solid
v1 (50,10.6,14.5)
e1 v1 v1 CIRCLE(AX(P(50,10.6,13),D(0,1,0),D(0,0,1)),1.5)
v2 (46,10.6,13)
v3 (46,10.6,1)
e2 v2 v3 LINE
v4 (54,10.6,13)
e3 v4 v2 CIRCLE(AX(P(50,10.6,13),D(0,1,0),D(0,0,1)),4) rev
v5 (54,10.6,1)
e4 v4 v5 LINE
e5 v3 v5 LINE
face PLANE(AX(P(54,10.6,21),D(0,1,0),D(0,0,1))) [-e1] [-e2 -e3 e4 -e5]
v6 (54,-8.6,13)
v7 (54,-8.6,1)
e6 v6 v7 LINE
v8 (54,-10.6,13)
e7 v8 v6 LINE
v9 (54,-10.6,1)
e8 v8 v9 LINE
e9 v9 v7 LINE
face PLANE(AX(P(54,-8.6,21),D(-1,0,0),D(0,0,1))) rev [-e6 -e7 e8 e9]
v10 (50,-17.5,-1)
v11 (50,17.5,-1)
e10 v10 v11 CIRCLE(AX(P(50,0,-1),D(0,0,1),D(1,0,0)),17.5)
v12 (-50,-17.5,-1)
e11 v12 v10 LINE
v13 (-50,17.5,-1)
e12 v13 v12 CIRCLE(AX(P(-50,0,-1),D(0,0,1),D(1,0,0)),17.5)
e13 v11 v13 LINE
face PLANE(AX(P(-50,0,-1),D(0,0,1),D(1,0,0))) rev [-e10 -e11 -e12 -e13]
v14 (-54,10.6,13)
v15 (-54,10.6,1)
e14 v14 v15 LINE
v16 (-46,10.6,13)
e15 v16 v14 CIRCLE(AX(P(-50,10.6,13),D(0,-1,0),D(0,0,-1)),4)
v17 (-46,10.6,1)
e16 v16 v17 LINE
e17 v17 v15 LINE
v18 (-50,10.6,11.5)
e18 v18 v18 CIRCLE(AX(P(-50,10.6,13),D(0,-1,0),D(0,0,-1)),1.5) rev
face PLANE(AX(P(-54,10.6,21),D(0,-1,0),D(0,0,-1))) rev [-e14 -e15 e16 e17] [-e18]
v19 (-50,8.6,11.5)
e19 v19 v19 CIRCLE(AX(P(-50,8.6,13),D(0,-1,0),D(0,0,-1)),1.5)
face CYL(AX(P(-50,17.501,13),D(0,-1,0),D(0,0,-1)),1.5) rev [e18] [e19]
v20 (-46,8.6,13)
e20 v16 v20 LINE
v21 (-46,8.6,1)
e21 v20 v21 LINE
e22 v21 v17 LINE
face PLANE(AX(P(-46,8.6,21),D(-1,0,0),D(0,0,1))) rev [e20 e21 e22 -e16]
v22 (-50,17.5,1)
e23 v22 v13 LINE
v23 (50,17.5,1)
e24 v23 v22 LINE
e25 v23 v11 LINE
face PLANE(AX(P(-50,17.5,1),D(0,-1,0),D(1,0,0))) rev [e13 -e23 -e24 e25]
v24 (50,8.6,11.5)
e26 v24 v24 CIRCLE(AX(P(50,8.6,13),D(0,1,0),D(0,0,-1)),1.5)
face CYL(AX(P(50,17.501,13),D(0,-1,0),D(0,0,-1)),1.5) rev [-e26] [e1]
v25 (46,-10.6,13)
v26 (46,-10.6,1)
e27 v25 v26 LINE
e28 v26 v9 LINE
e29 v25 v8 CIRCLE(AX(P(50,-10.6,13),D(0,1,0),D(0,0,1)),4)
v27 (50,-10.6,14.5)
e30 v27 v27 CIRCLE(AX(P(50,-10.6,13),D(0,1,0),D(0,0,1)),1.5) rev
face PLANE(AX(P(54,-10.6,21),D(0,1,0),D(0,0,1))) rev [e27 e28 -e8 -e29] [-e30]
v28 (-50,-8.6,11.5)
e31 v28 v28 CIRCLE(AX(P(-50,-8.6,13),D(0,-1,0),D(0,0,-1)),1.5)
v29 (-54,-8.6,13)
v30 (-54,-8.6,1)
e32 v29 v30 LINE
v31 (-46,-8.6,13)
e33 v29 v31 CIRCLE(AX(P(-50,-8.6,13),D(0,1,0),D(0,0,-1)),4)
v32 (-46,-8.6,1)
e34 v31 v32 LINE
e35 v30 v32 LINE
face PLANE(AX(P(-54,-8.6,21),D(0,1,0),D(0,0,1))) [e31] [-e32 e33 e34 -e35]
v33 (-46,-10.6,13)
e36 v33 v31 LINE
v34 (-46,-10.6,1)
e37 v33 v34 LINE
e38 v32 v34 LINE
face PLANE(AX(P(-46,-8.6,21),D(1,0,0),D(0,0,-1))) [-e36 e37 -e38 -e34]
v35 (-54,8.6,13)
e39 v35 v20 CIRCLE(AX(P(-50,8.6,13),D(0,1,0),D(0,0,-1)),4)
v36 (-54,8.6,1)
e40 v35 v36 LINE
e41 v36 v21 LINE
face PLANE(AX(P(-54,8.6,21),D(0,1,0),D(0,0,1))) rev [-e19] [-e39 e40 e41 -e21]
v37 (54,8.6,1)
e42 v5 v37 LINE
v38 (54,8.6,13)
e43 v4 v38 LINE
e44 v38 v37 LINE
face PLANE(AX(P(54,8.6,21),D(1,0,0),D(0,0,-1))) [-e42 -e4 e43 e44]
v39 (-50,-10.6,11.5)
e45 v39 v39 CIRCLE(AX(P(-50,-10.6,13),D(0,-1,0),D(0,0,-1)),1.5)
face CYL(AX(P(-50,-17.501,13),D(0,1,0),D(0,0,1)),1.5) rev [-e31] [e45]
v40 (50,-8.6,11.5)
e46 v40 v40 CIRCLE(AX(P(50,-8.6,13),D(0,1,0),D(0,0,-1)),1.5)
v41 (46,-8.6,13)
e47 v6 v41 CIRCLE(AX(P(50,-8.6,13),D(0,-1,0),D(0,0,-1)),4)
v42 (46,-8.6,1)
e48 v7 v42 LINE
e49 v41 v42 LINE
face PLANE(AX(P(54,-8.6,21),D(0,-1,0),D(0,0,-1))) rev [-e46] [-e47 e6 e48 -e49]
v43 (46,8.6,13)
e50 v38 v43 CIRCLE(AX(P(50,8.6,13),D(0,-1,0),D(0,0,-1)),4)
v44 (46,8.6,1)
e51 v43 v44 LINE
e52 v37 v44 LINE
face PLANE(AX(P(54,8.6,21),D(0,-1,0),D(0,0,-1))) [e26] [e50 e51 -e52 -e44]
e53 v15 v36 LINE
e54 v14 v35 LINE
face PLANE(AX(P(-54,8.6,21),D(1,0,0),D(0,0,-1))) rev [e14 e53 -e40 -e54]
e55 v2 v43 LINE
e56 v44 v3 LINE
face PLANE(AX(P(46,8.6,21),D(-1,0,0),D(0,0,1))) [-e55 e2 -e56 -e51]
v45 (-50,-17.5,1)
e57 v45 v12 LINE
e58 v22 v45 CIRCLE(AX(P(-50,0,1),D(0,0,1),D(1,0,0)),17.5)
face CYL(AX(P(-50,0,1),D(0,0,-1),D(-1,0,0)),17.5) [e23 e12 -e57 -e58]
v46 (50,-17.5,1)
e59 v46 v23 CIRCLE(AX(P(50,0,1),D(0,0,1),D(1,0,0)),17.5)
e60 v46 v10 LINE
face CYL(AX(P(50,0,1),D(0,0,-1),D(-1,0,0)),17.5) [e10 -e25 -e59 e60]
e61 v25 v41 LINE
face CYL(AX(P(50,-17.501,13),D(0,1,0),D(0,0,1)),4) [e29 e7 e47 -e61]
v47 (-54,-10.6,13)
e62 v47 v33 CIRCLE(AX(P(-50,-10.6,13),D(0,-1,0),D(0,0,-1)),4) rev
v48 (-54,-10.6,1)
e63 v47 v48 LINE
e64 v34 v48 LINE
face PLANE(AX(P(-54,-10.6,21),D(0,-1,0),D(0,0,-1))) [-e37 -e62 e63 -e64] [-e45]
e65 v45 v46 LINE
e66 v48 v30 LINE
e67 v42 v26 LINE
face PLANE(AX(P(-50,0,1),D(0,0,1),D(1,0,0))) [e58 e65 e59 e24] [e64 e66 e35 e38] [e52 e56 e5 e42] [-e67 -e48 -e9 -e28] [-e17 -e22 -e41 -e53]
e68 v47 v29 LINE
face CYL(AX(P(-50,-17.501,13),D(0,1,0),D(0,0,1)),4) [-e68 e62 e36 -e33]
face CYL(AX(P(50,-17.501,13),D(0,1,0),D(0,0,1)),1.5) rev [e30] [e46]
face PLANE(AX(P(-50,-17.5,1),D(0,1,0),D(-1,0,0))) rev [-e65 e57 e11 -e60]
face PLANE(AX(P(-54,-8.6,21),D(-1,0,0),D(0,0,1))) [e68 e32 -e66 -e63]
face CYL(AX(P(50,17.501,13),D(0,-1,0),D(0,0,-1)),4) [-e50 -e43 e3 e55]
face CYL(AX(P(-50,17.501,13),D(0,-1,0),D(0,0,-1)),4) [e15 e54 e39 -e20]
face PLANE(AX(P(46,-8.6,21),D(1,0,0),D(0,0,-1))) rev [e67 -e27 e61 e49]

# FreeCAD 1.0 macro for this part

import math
import FreeCAD as App
import Part
import Sketcher
from FreeCAD import Vector


def add_polygon(sketch, points):
    """Adds a closed chain of lines whose ends are joined by coincident constraints."""
    first, n = sketch.GeometryCount, len(points)
    for a, b in zip(points, points[1:] + points[:1]):
        sketch.addGeometry(Part.LineSegment(App.Vector(*a, 0), App.Vector(*b, 0)), False)
    for i in range(n):
        sketch.addConstraint(Sketcher.Constraint("Coincident", first + i, 2, first + (i + 1) % n, 1))

doc = App.newDocument("Part")
body = doc.addObject("PartDesign::Body", "Body")

# Sketch on XY plane
sketch1 = body.newObject("Sketcher::SketchObject", "Sketch")
sketch1.AttachmentSupport = (doc.getObject("XY_Plane"), [""])
sketch1.MapMode = "FlatFace"
sketch1.addGeometry([
    Part.LineSegment(Vector(50, 18, 0), Vector(-50, 18, 0)),
    Part.ArcOfCircle(Part.Circle(Vector(-50, 0, 0), Vector(0, 0, 1), 18), math.radians(90), math.radians(270)),
    Part.LineSegment(Vector(-50, -18, 0), Vector(50, -18, 0)),
    Part.ArcOfCircle(Part.Circle(Vector(50, 0, 0), Vector(0, 0, 1), 18), math.radians(-90), math.radians(90)),
], False)
sketch1.addConstraint([
    Sketcher.Constraint("Tangent", 0, 2, 1, 1),
    Sketcher.Constraint("Tangent", 1, 2, 2, 1),
    Sketcher.Constraint("Tangent", 2, 2, 3, 1),
    Sketcher.Constraint("Tangent", 3, 2, 0, 1),
    Sketcher.Constraint("Horizontal", 0),
    Sketcher.Constraint("Horizontal", 2),
    Sketcher.Constraint("Symmetric", 1, 3, 3, 3, -1, 1),
    Sketcher.Constraint("Radius", 1, 17.5),
    Sketcher.Constraint("DistanceX", 0, 2, 0, 1, 100.0),
])
pad1 = body.newObject("PartDesign::Pad", "Pad")
pad1.Profile = sketch1
pad1.Length = 2
pad1.Midplane = True

# Sketch on XY plane
sketch2 = body.newObject("Sketcher::SketchObject", "Sketch001")
sketch2.AttachmentSupport = (doc.getObject("XY_Plane"), [""])
sketch2.MapMode = "FlatFace"
sketch2.AttachmentOffset = App.Placement(Vector(0, 0, 1), App.Rotation())
add_polygon(sketch2, [(-54, 10.6), (-54, 8.6), (-46, 8.6), (-46, 10.6)])  # lines 0-3
sketch2.addConstraint([
    Sketcher.Constraint("Vertical", 0),
    Sketcher.Constraint("Horizontal", 1),
    Sketcher.Constraint("Vertical", 2),
    Sketcher.Constraint("Horizontal", 3),
    Sketcher.Constraint("DistanceX", 1, 1, 1, 2, 8.0),
    Sketcher.Constraint("DistanceY", 0, 2, 0, 1, 2.0),
    Sketcher.Constraint("DistanceX", 0, 2, -1, 1, 54.0),
    Sketcher.Constraint("DistanceY", -1, 1, 0, 2, 8.6),
])
pad2 = body.newObject("PartDesign::Pad", "Pad001")
pad2.Profile = sketch2
pad2.Length = 20

# Sketch on XZ plane
sketch3 = body.newObject("Sketcher::SketchObject", "Sketch002")
sketch3.AttachmentSupport = (doc.getObject("XZ_Plane"), [""])
sketch3.MapMode = "FlatFace"
sketch3.AttachmentOffset = App.Placement(Vector(0, 0, -8.6), App.Rotation())
sketch3.addGeometry([
    Part.Circle(Vector(-50, 13, 0), Vector(0, 0, 1), 1.5),  # 0
    Part.LineSegment(Vector(-54, 21, 0), Vector(-54, 13, 0)),  # 1
    Part.ArcOfCircle(Part.Circle(Vector(-50, 13, 0), Vector(0, 0, 1), 4), math.radians(0), math.radians(180)),  # 2
    Part.LineSegment(Vector(-46, 13, 0), Vector(-46, 21, 0)),  # 3
    Part.LineSegment(Vector(-46, 21, 0), Vector(-54, 21, 0)),  # 4
], False)
sketch3.addConstraint([
    Sketcher.Constraint("Tangent", 1, 2, 2, 2),
    Sketcher.Constraint("Tangent", 2, 1, 3, 1),
    Sketcher.Constraint("Coincident", 3, 2, 4, 1),
    Sketcher.Constraint("Coincident", 4, 2, 1, 1),
    Sketcher.Constraint("Vertical", 1),
    Sketcher.Constraint("Vertical", 3),
    Sketcher.Constraint("Horizontal", 4),
    Sketcher.Constraint("Coincident", 2, 3, 0, 3),
    Sketcher.Constraint("Equal", 4, 1),
    Sketcher.Constraint("Diameter", 0, 3.0),
    Sketcher.Constraint("Radius", 2, 4.0),
    Sketcher.Constraint("DistanceX", 0, 3, -1, 1, 50.0),
    Sketcher.Constraint("DistanceY", -1, 1, 0, 3, 13.0),
])
pocket1 = body.newObject("PartDesign::Pocket", "Pocket")
pocket1.Profile = sketch3
pocket1.Length = 2
doc.recompute()

mirrored = body.newObject("PartDesign::Mirrored", "Mirrored")
mirrored.Originals = [pad2, pocket1]
mirrored.MirrorPlane = (doc.getObject("XZ_Plane"), [""])
body.Tip = mirrored
doc.recompute()

mirrored2 = body.newObject("PartDesign::Mirrored", "Mirrored001")
mirrored2.Originals = [pad2, pocket1]
mirrored2.MirrorPlane = (doc.getObject("YZ_Plane"), [""])
body.Tip = mirrored2

# Sketch on XY plane
sketch4 = body.newObject("Sketcher::SketchObject", "Sketch003")
sketch4.AttachmentSupport = (doc.getObject("XY_Plane"), [""])
sketch4.MapMode = "FlatFace"
sketch4.AttachmentOffset = App.Placement(Vector(0, 0, 1), App.Rotation())
add_polygon(sketch4, [(54, -10.6), (54, -8.6), (46, -8.6), (46, -10.6)])  # lines 0-3
sketch4.addConstraint([
    Sketcher.Constraint("Vertical", 0),
    Sketcher.Constraint("Horizontal", 1),
    Sketcher.Constraint("Vertical", 2),
    Sketcher.Constraint("Horizontal", 3),
    Sketcher.Constraint("DistanceX", 1, 2, 1, 1, 8.0),
    Sketcher.Constraint("DistanceY", 0, 1, 0, 2, 2.0),
    Sketcher.Constraint("DistanceX", -1, 1, 0, 2, 54.0),
    Sketcher.Constraint("DistanceY", 0, 2, -1, 1, 8.6),
])
pad3 = body.newObject("PartDesign::Pad", "Pad002")
pad3.Profile = sketch4
pad3.Length = 20

# Sketch on XZ plane
sketch5 = body.newObject("Sketcher::SketchObject", "Sketch004")
sketch5.AttachmentSupport = (doc.getObject("XZ_Plane"), [""])
sketch5.MapMode = "FlatFace"
sketch5.AttachmentOffset = App.Placement(Vector(0, 0, 8.6), App.Rotation())
sketch5.addGeometry([
    Part.Circle(Vector(50, 13, 0), Vector(0, 0, 1), 1.5),  # 0
    Part.LineSegment(Vector(54, 21, 0), Vector(54, 13, 0)),  # 1
    Part.ArcOfCircle(Part.Circle(Vector(50, 13, 0), Vector(0, 0, 1), 4), math.radians(0), math.radians(180)),  # 2
    Part.LineSegment(Vector(46, 13, 0), Vector(46, 21, 0)),  # 3
    Part.LineSegment(Vector(46, 21, 0), Vector(54, 21, 0)),  # 4
], False)
sketch5.addConstraint([
    Sketcher.Constraint("Tangent", 1, 2, 2, 1),
    Sketcher.Constraint("Tangent", 2, 2, 3, 1),
    Sketcher.Constraint("Coincident", 3, 2, 4, 1),
    Sketcher.Constraint("Coincident", 4, 2, 1, 1),
    Sketcher.Constraint("Vertical", 1),
    Sketcher.Constraint("Vertical", 3),
    Sketcher.Constraint("Horizontal", 4),
    Sketcher.Constraint("Coincident", 2, 3, 0, 3),
    Sketcher.Constraint("Equal", 4, 1),
    Sketcher.Constraint("Diameter", 0, 3.0),
    Sketcher.Constraint("Radius", 2, 4.0),
    Sketcher.Constraint("DistanceX", -1, 1, 0, 3, 50.0),
    Sketcher.Constraint("DistanceY", -1, 1, 0, 3, 13.0),
])
pocket2 = body.newObject("PartDesign::Pocket", "Pocket001")
pocket2.Profile = sketch5
pocket2.Length = 2
pocket2.Reversed = True

doc.recompute()
